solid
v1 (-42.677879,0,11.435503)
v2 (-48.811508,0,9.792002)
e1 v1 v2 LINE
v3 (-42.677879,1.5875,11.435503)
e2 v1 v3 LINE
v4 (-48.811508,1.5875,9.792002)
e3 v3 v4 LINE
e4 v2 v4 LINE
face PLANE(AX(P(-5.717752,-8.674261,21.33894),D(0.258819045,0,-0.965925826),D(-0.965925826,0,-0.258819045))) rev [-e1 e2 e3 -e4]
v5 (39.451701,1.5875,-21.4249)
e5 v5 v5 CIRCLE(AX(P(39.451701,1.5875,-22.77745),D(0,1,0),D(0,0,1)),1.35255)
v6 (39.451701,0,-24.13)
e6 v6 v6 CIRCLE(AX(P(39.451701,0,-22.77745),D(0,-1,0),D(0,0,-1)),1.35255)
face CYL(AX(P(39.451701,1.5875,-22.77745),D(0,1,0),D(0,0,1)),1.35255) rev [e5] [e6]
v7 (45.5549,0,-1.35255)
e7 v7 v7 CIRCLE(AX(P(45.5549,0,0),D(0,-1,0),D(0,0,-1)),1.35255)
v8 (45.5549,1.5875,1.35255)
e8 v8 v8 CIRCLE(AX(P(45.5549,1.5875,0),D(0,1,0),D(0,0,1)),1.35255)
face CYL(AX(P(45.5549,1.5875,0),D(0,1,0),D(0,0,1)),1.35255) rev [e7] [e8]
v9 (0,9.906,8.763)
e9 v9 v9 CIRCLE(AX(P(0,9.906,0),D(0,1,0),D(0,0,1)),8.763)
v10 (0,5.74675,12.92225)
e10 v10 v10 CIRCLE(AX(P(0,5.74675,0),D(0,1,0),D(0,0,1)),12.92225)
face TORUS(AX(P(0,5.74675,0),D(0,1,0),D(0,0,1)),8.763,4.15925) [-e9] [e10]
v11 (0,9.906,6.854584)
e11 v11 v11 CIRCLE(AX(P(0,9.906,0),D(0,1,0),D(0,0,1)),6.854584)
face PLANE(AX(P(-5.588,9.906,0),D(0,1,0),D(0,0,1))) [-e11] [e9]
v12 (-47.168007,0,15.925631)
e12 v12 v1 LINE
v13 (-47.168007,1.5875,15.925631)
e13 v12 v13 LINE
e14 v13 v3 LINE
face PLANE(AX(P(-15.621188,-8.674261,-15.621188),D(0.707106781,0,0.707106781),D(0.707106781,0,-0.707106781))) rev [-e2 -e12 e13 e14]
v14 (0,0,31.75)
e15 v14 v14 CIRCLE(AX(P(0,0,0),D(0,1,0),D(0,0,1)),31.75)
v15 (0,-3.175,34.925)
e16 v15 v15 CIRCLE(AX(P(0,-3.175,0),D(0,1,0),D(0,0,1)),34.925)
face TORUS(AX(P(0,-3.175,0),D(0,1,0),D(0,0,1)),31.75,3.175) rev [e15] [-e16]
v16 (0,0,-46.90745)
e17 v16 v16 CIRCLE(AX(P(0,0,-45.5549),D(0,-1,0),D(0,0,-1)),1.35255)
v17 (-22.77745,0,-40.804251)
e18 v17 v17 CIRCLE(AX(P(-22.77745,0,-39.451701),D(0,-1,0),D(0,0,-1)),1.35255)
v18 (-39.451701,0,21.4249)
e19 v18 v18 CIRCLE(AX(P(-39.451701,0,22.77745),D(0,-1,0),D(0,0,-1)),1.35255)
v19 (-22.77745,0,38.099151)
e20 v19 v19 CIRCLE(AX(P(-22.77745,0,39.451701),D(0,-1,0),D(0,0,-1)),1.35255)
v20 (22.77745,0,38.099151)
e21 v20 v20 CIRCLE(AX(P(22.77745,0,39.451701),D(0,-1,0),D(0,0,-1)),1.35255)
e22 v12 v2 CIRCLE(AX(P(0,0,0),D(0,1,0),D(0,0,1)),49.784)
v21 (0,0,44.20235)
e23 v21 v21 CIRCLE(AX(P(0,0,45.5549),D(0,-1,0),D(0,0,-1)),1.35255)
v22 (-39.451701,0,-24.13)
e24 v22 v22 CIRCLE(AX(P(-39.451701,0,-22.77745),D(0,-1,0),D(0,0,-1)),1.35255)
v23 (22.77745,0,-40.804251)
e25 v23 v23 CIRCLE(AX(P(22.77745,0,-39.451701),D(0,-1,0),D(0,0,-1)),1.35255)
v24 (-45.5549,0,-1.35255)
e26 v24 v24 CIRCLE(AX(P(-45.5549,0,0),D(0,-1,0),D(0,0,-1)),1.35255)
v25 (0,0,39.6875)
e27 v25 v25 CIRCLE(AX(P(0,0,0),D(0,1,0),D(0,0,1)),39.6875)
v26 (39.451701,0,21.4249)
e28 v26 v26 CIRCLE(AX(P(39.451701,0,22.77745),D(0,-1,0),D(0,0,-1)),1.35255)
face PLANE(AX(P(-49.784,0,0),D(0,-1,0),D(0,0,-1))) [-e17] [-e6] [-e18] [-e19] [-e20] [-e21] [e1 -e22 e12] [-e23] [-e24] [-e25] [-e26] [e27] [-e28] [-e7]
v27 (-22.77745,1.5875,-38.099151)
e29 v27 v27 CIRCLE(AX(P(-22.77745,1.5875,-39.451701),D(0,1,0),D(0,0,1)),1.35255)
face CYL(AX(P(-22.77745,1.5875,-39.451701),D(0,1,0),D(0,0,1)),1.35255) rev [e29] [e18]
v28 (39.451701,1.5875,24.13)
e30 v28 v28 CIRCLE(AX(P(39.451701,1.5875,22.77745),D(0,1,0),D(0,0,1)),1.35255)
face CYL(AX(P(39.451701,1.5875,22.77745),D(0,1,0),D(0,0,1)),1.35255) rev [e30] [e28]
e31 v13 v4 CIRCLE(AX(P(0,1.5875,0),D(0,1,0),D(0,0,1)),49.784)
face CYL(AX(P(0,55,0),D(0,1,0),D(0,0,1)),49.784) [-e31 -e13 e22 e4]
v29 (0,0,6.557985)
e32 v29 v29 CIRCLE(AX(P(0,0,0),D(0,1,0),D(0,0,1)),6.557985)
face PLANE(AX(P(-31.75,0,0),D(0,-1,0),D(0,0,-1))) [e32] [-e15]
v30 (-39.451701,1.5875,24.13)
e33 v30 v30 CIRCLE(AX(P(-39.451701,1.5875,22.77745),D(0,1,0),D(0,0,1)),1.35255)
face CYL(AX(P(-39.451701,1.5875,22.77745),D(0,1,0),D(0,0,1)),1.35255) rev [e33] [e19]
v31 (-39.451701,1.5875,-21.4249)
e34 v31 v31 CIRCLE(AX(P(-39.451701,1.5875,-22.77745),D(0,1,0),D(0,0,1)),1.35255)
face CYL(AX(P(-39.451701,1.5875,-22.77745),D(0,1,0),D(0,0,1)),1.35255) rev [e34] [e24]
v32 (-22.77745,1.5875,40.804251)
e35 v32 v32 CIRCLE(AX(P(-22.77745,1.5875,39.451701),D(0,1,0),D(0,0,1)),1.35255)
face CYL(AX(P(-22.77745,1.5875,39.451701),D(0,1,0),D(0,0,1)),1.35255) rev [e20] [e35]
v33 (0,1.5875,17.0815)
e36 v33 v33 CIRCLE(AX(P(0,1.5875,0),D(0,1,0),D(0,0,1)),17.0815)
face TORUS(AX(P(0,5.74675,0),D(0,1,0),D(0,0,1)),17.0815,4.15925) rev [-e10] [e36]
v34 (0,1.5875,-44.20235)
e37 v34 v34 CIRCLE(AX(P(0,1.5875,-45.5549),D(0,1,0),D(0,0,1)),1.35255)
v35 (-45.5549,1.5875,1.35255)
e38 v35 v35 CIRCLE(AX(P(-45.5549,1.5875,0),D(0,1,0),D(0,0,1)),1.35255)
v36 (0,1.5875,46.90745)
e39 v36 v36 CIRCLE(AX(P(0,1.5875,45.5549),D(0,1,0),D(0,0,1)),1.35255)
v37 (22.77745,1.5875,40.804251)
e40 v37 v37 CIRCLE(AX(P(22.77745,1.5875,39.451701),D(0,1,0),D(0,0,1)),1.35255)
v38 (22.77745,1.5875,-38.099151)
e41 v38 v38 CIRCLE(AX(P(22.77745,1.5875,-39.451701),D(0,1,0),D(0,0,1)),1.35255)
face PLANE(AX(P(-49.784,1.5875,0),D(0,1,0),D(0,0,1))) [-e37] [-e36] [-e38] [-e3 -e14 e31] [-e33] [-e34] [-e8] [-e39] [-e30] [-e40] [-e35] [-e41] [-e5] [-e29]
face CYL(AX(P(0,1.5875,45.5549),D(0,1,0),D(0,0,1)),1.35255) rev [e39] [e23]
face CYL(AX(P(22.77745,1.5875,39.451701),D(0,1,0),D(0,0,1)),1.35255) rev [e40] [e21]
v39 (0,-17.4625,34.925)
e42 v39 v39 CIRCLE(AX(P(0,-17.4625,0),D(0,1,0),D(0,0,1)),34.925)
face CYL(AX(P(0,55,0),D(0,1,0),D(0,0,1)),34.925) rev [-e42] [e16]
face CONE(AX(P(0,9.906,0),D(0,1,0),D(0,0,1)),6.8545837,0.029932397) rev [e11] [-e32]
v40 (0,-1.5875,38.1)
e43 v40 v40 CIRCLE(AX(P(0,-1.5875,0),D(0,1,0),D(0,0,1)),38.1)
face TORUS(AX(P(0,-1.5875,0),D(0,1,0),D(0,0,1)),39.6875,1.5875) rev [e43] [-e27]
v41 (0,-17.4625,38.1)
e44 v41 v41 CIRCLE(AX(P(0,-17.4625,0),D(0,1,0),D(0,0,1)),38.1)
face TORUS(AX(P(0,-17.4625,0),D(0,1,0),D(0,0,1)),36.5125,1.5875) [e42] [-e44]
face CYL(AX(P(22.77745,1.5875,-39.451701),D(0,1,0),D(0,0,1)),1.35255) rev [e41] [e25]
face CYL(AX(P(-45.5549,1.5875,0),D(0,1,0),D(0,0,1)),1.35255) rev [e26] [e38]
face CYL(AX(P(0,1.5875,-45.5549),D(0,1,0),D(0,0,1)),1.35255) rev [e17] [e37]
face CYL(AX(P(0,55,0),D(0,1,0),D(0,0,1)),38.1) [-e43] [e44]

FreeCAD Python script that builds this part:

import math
import FreeCAD as App
import Part
import Sketcher

V = App.Vector
Q = App.Units.Quantity

doc = App.newDocument("Part")
body = doc.addObject("PartDesign::Body", "Body")

# Sketch on XY plane
sketch1 = doc.addObject("Sketcher::SketchObject", "Sketch")
body.addObject(sketch1)
sketch1.AttachmentSupport = (doc.XY_Plane, [""])
sketch1.MapMode = "FlatFace"
sketch1.addGeometry([
    Part.LineSegment(V(-49.8, 0, 0), V(-39.7, 0, 0)),  # 0
    Part.ArcOfCircle(Part.Circle(V(-39.7, -1.6, 0), V(0, 0, 1), 1.6), math.radians(0), math.radians(90)),  # 1
    Part.LineSegment(V(-38.1, -1.6, 0), V(-38.1, -17.5, 0)),  # 2
    Part.ArcOfCircle(Part.Circle(V(-36.5, -17.5, 0), V(0, 0, 1), 1.6), math.radians(180), math.radians(360)),  # 3
    Part.LineSegment(V(-34.9, -17.5, 0), V(-34.9, -3.2, 0)),  # 4
    Part.ArcOfCircle(Part.Circle(V(-31.7, -3.2, 0), V(0, 0, 1), 3.2), math.radians(90), math.radians(180)),  # 5
    Part.LineSegment(V(-31.8, 0, 0), V(-5.6, 0, 0)),  # 6
    Part.LineSegment(V(-5.6, 0, 0), V(-5.6, 9.9, 0)),  # 7
    Part.LineSegment(V(-5.6, 9.9, 0), V(-8.8, 9.9, 0)),  # 8
    Part.ArcOfCircle(Part.Circle(V(-8.8, 5.7, 0), V(0, 0, 1), 4.2), math.radians(90), math.radians(180)),  # 9
    Part.ArcOfCircle(Part.Circle(V(-17.1, 5.7, 0), V(0, 0, 1), 4.2), math.radians(-90), math.radians(0)),  # 10
    Part.LineSegment(V(-17.1, 1.6, 0), V(-49.8, 1.6, 0)),  # 11
    Part.LineSegment(V(-49.8, 1.6, 0), V(-49.8, 0, 0)),  # 12
], False)
sketch1.addConstraint([
    Sketcher.Constraint("Tangent", 0, 2, 1, 2),
    Sketcher.Constraint("Tangent", 1, 1, 2, 1),
    Sketcher.Constraint("Tangent", 2, 2, 3, 1),
    Sketcher.Constraint("Tangent", 3, 2, 4, 1),
    Sketcher.Constraint("Tangent", 4, 2, 5, 2),
    Sketcher.Constraint("Tangent", 5, 1, 6, 1),
    Sketcher.Constraint("Coincident", 6, 2, 7, 1),
    Sketcher.Constraint("Coincident", 7, 2, 8, 1),
    Sketcher.Constraint("Tangent", 8, 2, 9, 1),
    Sketcher.Constraint("Tangent", 9, 2, 10, 2),
    Sketcher.Constraint("Tangent", 10, 1, 11, 1),
    Sketcher.Constraint("Coincident", 11, 2, 12, 1),
    Sketcher.Constraint("Coincident", 12, 2, 0, 1),
    Sketcher.Constraint("Horizontal", 0),
    Sketcher.Constraint("Vertical", 2),
    Sketcher.Constraint("Vertical", 4),
    Sketcher.Constraint("Horizontal", 6),
    Sketcher.Constraint("Vertical", 7),
    Sketcher.Constraint("Horizontal", 8),
    Sketcher.Constraint("Horizontal", 11),
    Sketcher.Constraint("Vertical", 12),
    Sketcher.Constraint("Equal", 1, 3),
    Sketcher.Constraint("Equal", 9, 10),
    Sketcher.Constraint("PointOnObject", 0, 2, -1),
    Sketcher.Constraint("PointOnObject", 5, 1, -1),
    Sketcher.Constraint("Horizontal", 9, 3, 10, 3),
    Sketcher.Constraint("Radius", 1, Q("0.0625 in")),
    Sketcher.Constraint("Radius", 5, Q("0.125 in")),
    Sketcher.Constraint("DistanceX", 6, 1, 6, 2, Q("1.03 in")),
    Sketcher.Constraint("DistanceY", 7, 1, 7, 2, Q("0.39 in")),
    Sketcher.Constraint("DistanceX", 1, 1, -1, 1, Q("1.5 in")),
    Sketcher.Constraint("DistanceX", 8, 2, 8, 1, Q("0.125 in")),
    Sketcher.Constraint("DistanceY", 2, 2, 2, 1, Q("0.625 in")),
    Sketcher.Constraint("DistanceY", 12, 2, 12, 1, Q("0.0625 in")),
    Sketcher.Constraint("DistanceX", 11, 2, -1, 1, Q("1.96 in")),
])
revolution = doc.addObject("PartDesign::Revolution", "Revolution")
body.addObject(revolution)
revolution.Profile = sketch1
revolution.ReferenceAxis = (sketch1, ["V_Axis"])
revolution.Angle = 360

# Sketch on XZ plane
sketch2 = doc.addObject("Sketcher::SketchObject", "Sketch001")
body.addObject(sketch2)
sketch2.AttachmentSupport = (doc.XZ_Plane, [""])
sketch2.MapMode = "FlatFace"
sketch2.AttachmentOffset = App.Placement(V(0, 0, -0.0625 * 25.4), App.Rotation())
sketch2.addGeometry(Part.Circle(V(-45.6, 0, 0), V(0, 0, 1), 1.4), False)
sketch2.addConstraint([
    Sketcher.Constraint("PointOnObject", 0, 3, -1),
    Sketcher.Constraint("Diameter", 0, Q("0.1065 in")),
    Sketcher.Constraint("DistanceX", 0, 3, -1, 1, Q("1.7935 in")),
])
doc.recompute()
hole = doc.addObject("PartDesign::Hole", "Hole")
body.addObject(hole)
hole.Profile = sketch2
hole.ThreadType = "None"
hole.Diameter = Q("0.1065 in")
hole.DepthType = "ThroughAll"
hole.Reversed = True
doc.recompute()

polarpattern = doc.addObject("PartDesign::PolarPattern", "PolarPattern")
body.addObject(polarpattern)
polarpattern.Originals = [hole]
polarpattern.Axis = (doc.Y_Axis, [""])
polarpattern.Angle = 360
polarpattern.Occurrences = 12
body.Tip = polarpattern

# Sketch on YZ plane
sketch3 = doc.addObject("Sketcher::SketchObject", "Sketch002")
body.addObject(sketch3)
sketch3.AttachmentSupport = (doc.YZ_Plane, [""])
sketch3.MapMode = "FlatFace"
sketch3.addGeometry([
    Part.LineSegment(V(-19.1, 0, 0), V(9.9, 0, 0)),  # 0
    Part.LineSegment(V(9.9, 0, 0), V(9.9, 6.9, 0)),  # 1
    Part.LineSegment(V(9.9, 6.9, 0), V(0, 6.6, 0)),  # 2
    Part.LineSegment(V(0, 6.6, 0), V(0, 5.6, 0)),  # 3
    Part.LineSegment(V(0, 5.6, 0), V(-19.1, 5.6, 0)),  # 4
    Part.LineSegment(V(-19.1, 5.6, 0), V(-19.1, 0, 0)),  # 5
], False)
sketch3.addConstraint([
    Sketcher.Constraint("Coincident", 0, 2, 1, 1),
    Sketcher.Constraint("Coincident", 1, 2, 2, 1),
    Sketcher.Constraint("Coincident", 2, 2, 3, 1),
    Sketcher.Constraint("Coincident", 3, 2, 4, 1),
    Sketcher.Constraint("Coincident", 4, 2, 5, 1),
    Sketcher.Constraint("Coincident", 5, 2, 0, 1),
    Sketcher.Constraint("Horizontal", 0),
    Sketcher.Constraint("Vertical", 1),
    Sketcher.Constraint("Vertical", 3),
    Sketcher.Constraint("Horizontal", 4),
    Sketcher.Constraint("Vertical", 5),
    Sketcher.Constraint("PointOnObject", 0, 2, -1),
    Sketcher.Constraint("PointOnObject", 2, 2, -2),
    Sketcher.Constraint("DistanceX", 0, 1, 0, 2, Q("1.14 in")),
    Sketcher.Constraint("DistanceX", 4, 2, 4, 1, Q("0.75 in")),
    Sketcher.Constraint("DistanceY", 5, 2, 5, 1, Q("0.219 in")),
    Sketcher.Constraint("DistanceY", 2, 2, 1, 2, 0.296599),
    Sketcher.Constraint("DistanceY", 1, 1, 1, 2, 6.854584),
])
groove = doc.addObject("PartDesign::Groove", "Groove")
body.addObject(groove)
groove.Profile = sketch3
groove.ReferenceAxis = (sketch3, ["H_Axis"])
groove.Angle = 360

# Sketch on XZ plane
sketch4 = doc.addObject("Sketcher::SketchObject", "Sketch003")
body.addObject(sketch4)
sketch4.AttachmentSupport = (doc.XZ_Plane, [""])
sketch4.MapMode = "FlatFace"
sketch4.AttachmentOffset = App.Placement(V(0, 0, -0.0625 * 25.4), App.Rotation())
sketch4.addGeometry([
    Part.LineSegment(V(-47, 16, 0), V(-43, 11, 0)),
    Part.LineSegment(V(-43, 11, 0), V(-49, 10, 0)),
    Part.ArcOfCircle(Part.Circle(V(0, 0, 0), V(0, 0, 1), 50), math.radians(161.34), math.radians(168.66)),
], False)
sketch4.addConstraint([
    Sketcher.Constraint("Coincident", 0, 2, 1, 1),
    Sketcher.Constraint("Coincident", 1, 2, 2, 2),
    Sketcher.Constraint("Coincident", 2, 1, 0, 1),
    Sketcher.Constraint("Coincident", 2, 3, -1, 1),
    Sketcher.Constraint("Equal", 0, 1),
    Sketcher.Constraint("Radius", 2, Q("1.96 in")),
    Sketcher.Constraint("Angle", 0, Q("-45 deg")),
    Sketcher.Constraint("Angle", 1, Q("-165 deg")),
    Sketcher.Constraint("Distance", 0, Q("0.25 in")),
])
pocket1 = doc.addObject("PartDesign::Pocket", "Pocket")
body.addObject(pocket1)
pocket1.Profile = sketch4
pocket1.Length = Q("0.0625 in")
pocket1.Reversed = True

doc.recompute()
